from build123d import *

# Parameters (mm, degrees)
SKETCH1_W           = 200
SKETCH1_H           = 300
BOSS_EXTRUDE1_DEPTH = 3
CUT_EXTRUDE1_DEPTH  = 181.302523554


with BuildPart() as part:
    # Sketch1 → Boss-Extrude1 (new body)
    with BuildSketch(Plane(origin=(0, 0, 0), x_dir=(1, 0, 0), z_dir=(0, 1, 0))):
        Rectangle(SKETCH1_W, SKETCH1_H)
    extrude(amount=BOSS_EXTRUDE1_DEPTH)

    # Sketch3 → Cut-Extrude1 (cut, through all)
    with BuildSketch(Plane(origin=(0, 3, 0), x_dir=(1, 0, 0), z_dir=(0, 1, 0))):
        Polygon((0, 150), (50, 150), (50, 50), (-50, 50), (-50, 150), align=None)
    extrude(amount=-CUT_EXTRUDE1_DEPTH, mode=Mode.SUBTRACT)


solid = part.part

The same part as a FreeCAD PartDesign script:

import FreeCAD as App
import Part
import Sketcher
Q = App.Units.Quantity


def add_polygon(sketch, points):
    """Adds a closed chain of lines whose ends are joined by coincident constraints."""
    first, n = sketch.GeometryCount, len(points)
    for a, b in zip(points, points[1:] + points[:1]):
        sketch.addGeometry(Part.LineSegment(App.Vector(*a, 0), App.Vector(*b, 0)), False)
    for i in range(n):
        sketch.addConstraint(Sketcher.Constraint("Coincident", first + i, 2, first + (i + 1) % n, 1))

doc = App.newDocument("Part")
body = doc.addObject("PartDesign::Body", "Body")

# Sketch on XZ plane
sketch1 = doc.addObject("Sketcher::SketchObject", "Sketch")
body.addObject(sketch1)
sketch1.AttachmentSupport = (doc.XZ_Plane, [""])
sketch1.MapMode = "FlatFace"
add_polygon(sketch1, [(-100, -150), (-100, 150), (100, 150), (100, -150)])  # lines 0-3
sketch1.addConstraint(Sketcher.Constraint("Vertical", 0))
sketch1.addConstraint(Sketcher.Constraint("Horizontal", 1))
sketch1.addConstraint(Sketcher.Constraint("Vertical", 2))
sketch1.addConstraint(Sketcher.Constraint("Horizontal", 3))
sketch1.addConstraint(Sketcher.Constraint("Symmetric", 0, 2, 2, 2, -1, 1))
sketch1.addConstraint(Sketcher.Constraint("DistanceX", 1, 1, 1, 2, Q("200 mm")))
sketch1.addConstraint(Sketcher.Constraint("DistanceY", 0, 1, 0, 2, Q("300 mm")))
pad1 = doc.addObject("PartDesign::Pad", "Pad")
body.addObject(pad1)
pad1.Profile = sketch1
pad1.Length = 3
pad1.Reversed = True

# Sketch on XZ plane
sketch2 = doc.addObject("Sketcher::SketchObject", "Sketch001")
body.addObject(sketch2)
sketch2.AttachmentSupport = (doc.XZ_Plane, [""])
sketch2.MapMode = "FlatFace"
sketch2.AttachmentOffset = App.Placement(App.Vector(0, 0, -3), App.Rotation())
add_polygon(sketch2, [(50, -150), (-50, -150), (-50, -50), (50, -50)])  # lines 0-3
sketch2.addConstraint(Sketcher.Constraint("Horizontal", 0))
sketch2.addConstraint(Sketcher.Constraint("Vertical", 1))
sketch2.addConstraint(Sketcher.Constraint("Horizontal", 2))
sketch2.addConstraint(Sketcher.Constraint("Vertical", 3))
sketch2.addConstraint(Sketcher.Constraint("Equal", 2, 1))
sketch2.addConstraint(Sketcher.Constraint("DistanceX", 0, 2, 0, 1, Q("100 mm")))
sketch2.addConstraint(Sketcher.Constraint("DistanceX", 0, 2, -1, 1, Q("50 mm")))
sketch2.addConstraint(Sketcher.Constraint("DistanceY", 0, 2, -1, 1, Q("150 mm")))
pocket1 = doc.addObject("PartDesign::Pocket", "Pocket")
body.addObject(pocket1)
pocket1.Profile = sketch2
pocket1.Type = "ThroughAll"
pocket1.Reversed = True

doc.recompute()
